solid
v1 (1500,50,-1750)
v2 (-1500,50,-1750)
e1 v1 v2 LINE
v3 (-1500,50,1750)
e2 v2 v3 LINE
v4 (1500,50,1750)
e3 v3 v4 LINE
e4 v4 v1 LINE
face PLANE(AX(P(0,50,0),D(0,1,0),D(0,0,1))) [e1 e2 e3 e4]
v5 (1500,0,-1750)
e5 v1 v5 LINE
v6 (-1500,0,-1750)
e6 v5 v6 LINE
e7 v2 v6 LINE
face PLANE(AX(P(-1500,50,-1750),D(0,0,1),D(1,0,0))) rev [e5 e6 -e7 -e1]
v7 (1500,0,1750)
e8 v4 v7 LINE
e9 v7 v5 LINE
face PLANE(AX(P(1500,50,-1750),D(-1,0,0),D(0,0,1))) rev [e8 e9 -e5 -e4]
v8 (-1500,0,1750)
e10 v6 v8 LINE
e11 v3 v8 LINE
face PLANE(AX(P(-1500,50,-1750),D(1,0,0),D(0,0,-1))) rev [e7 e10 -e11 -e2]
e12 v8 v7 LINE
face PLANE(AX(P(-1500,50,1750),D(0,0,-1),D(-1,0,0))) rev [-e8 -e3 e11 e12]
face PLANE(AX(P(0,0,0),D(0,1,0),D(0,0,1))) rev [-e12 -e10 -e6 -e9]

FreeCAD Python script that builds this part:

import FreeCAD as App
import Part
import Sketcher

V = App.Vector

doc = App.newDocument("Part")
params = doc.addObject("Spreadsheet::Sheet", "Params")
for row, (alias, value) in enumerate([
    ("sketch1_width", "3000 mm"),
    ("sketch1_height", "3500 mm"),
    ("pad1_length", "50 mm"),
], start=1):
    params.set(f"A{row}", alias)
    params.set(f"B{row}", "=" + value)
    params.setAlias(f"B{row}", alias)

body = doc.addObject("PartDesign::Body", "Body")

sketch1 = doc.addObject("Sketcher::SketchObject", "Sketch")
body.addObject(sketch1)
sketch1.AttachmentSupport = (doc.XZ_Plane, [""])
sketch1.MapMode = "FlatFace"
sketch1.addGeometry([
    Part.LineSegment(V(-1500, -1750, 0), V(-1500, 1750, 0)),
    Part.LineSegment(V(-1500, 1750, 0), V(1500, 1750, 0)),
    Part.LineSegment(V(1500, 1750, 0), V(1500, -1750, 0)),
    Part.LineSegment(V(1500, -1750, 0), V(-1500, -1750, 0)),
], False)
sketch1.addConstraint([
    Sketcher.Constraint("Coincident", 0, 2, 1, 1),
    Sketcher.Constraint("Coincident", 1, 2, 2, 1),
    Sketcher.Constraint("Coincident", 2, 2, 3, 1),
    Sketcher.Constraint("Coincident", 3, 2, 0, 1),
    Sketcher.Constraint("Vertical", 0),
    Sketcher.Constraint("Horizontal", 1),
    Sketcher.Constraint("Vertical", 2),
    Sketcher.Constraint("Horizontal", 3),
    Sketcher.Constraint("Symmetric", 0, 2, 2, 2, -1, 1),
    Sketcher.Constraint("DistanceX", 1, 1, 1, 2, 3000.0),
    Sketcher.Constraint("DistanceY", 0, 1, 0, 2, 3500.0),
])
sketch1.setExpression("Constraints[9]", "Params.sketch1_width")
sketch1.setExpression("Constraints[10]", "Params.sketch1_height")
pad1 = doc.addObject("PartDesign::Pad", "Pad")
body.addObject(pad1)
pad1.Profile = sketch1
pad1.setExpression("Length", "Params.pad1_length")
pad1.Reversed = True

doc.recompute()
